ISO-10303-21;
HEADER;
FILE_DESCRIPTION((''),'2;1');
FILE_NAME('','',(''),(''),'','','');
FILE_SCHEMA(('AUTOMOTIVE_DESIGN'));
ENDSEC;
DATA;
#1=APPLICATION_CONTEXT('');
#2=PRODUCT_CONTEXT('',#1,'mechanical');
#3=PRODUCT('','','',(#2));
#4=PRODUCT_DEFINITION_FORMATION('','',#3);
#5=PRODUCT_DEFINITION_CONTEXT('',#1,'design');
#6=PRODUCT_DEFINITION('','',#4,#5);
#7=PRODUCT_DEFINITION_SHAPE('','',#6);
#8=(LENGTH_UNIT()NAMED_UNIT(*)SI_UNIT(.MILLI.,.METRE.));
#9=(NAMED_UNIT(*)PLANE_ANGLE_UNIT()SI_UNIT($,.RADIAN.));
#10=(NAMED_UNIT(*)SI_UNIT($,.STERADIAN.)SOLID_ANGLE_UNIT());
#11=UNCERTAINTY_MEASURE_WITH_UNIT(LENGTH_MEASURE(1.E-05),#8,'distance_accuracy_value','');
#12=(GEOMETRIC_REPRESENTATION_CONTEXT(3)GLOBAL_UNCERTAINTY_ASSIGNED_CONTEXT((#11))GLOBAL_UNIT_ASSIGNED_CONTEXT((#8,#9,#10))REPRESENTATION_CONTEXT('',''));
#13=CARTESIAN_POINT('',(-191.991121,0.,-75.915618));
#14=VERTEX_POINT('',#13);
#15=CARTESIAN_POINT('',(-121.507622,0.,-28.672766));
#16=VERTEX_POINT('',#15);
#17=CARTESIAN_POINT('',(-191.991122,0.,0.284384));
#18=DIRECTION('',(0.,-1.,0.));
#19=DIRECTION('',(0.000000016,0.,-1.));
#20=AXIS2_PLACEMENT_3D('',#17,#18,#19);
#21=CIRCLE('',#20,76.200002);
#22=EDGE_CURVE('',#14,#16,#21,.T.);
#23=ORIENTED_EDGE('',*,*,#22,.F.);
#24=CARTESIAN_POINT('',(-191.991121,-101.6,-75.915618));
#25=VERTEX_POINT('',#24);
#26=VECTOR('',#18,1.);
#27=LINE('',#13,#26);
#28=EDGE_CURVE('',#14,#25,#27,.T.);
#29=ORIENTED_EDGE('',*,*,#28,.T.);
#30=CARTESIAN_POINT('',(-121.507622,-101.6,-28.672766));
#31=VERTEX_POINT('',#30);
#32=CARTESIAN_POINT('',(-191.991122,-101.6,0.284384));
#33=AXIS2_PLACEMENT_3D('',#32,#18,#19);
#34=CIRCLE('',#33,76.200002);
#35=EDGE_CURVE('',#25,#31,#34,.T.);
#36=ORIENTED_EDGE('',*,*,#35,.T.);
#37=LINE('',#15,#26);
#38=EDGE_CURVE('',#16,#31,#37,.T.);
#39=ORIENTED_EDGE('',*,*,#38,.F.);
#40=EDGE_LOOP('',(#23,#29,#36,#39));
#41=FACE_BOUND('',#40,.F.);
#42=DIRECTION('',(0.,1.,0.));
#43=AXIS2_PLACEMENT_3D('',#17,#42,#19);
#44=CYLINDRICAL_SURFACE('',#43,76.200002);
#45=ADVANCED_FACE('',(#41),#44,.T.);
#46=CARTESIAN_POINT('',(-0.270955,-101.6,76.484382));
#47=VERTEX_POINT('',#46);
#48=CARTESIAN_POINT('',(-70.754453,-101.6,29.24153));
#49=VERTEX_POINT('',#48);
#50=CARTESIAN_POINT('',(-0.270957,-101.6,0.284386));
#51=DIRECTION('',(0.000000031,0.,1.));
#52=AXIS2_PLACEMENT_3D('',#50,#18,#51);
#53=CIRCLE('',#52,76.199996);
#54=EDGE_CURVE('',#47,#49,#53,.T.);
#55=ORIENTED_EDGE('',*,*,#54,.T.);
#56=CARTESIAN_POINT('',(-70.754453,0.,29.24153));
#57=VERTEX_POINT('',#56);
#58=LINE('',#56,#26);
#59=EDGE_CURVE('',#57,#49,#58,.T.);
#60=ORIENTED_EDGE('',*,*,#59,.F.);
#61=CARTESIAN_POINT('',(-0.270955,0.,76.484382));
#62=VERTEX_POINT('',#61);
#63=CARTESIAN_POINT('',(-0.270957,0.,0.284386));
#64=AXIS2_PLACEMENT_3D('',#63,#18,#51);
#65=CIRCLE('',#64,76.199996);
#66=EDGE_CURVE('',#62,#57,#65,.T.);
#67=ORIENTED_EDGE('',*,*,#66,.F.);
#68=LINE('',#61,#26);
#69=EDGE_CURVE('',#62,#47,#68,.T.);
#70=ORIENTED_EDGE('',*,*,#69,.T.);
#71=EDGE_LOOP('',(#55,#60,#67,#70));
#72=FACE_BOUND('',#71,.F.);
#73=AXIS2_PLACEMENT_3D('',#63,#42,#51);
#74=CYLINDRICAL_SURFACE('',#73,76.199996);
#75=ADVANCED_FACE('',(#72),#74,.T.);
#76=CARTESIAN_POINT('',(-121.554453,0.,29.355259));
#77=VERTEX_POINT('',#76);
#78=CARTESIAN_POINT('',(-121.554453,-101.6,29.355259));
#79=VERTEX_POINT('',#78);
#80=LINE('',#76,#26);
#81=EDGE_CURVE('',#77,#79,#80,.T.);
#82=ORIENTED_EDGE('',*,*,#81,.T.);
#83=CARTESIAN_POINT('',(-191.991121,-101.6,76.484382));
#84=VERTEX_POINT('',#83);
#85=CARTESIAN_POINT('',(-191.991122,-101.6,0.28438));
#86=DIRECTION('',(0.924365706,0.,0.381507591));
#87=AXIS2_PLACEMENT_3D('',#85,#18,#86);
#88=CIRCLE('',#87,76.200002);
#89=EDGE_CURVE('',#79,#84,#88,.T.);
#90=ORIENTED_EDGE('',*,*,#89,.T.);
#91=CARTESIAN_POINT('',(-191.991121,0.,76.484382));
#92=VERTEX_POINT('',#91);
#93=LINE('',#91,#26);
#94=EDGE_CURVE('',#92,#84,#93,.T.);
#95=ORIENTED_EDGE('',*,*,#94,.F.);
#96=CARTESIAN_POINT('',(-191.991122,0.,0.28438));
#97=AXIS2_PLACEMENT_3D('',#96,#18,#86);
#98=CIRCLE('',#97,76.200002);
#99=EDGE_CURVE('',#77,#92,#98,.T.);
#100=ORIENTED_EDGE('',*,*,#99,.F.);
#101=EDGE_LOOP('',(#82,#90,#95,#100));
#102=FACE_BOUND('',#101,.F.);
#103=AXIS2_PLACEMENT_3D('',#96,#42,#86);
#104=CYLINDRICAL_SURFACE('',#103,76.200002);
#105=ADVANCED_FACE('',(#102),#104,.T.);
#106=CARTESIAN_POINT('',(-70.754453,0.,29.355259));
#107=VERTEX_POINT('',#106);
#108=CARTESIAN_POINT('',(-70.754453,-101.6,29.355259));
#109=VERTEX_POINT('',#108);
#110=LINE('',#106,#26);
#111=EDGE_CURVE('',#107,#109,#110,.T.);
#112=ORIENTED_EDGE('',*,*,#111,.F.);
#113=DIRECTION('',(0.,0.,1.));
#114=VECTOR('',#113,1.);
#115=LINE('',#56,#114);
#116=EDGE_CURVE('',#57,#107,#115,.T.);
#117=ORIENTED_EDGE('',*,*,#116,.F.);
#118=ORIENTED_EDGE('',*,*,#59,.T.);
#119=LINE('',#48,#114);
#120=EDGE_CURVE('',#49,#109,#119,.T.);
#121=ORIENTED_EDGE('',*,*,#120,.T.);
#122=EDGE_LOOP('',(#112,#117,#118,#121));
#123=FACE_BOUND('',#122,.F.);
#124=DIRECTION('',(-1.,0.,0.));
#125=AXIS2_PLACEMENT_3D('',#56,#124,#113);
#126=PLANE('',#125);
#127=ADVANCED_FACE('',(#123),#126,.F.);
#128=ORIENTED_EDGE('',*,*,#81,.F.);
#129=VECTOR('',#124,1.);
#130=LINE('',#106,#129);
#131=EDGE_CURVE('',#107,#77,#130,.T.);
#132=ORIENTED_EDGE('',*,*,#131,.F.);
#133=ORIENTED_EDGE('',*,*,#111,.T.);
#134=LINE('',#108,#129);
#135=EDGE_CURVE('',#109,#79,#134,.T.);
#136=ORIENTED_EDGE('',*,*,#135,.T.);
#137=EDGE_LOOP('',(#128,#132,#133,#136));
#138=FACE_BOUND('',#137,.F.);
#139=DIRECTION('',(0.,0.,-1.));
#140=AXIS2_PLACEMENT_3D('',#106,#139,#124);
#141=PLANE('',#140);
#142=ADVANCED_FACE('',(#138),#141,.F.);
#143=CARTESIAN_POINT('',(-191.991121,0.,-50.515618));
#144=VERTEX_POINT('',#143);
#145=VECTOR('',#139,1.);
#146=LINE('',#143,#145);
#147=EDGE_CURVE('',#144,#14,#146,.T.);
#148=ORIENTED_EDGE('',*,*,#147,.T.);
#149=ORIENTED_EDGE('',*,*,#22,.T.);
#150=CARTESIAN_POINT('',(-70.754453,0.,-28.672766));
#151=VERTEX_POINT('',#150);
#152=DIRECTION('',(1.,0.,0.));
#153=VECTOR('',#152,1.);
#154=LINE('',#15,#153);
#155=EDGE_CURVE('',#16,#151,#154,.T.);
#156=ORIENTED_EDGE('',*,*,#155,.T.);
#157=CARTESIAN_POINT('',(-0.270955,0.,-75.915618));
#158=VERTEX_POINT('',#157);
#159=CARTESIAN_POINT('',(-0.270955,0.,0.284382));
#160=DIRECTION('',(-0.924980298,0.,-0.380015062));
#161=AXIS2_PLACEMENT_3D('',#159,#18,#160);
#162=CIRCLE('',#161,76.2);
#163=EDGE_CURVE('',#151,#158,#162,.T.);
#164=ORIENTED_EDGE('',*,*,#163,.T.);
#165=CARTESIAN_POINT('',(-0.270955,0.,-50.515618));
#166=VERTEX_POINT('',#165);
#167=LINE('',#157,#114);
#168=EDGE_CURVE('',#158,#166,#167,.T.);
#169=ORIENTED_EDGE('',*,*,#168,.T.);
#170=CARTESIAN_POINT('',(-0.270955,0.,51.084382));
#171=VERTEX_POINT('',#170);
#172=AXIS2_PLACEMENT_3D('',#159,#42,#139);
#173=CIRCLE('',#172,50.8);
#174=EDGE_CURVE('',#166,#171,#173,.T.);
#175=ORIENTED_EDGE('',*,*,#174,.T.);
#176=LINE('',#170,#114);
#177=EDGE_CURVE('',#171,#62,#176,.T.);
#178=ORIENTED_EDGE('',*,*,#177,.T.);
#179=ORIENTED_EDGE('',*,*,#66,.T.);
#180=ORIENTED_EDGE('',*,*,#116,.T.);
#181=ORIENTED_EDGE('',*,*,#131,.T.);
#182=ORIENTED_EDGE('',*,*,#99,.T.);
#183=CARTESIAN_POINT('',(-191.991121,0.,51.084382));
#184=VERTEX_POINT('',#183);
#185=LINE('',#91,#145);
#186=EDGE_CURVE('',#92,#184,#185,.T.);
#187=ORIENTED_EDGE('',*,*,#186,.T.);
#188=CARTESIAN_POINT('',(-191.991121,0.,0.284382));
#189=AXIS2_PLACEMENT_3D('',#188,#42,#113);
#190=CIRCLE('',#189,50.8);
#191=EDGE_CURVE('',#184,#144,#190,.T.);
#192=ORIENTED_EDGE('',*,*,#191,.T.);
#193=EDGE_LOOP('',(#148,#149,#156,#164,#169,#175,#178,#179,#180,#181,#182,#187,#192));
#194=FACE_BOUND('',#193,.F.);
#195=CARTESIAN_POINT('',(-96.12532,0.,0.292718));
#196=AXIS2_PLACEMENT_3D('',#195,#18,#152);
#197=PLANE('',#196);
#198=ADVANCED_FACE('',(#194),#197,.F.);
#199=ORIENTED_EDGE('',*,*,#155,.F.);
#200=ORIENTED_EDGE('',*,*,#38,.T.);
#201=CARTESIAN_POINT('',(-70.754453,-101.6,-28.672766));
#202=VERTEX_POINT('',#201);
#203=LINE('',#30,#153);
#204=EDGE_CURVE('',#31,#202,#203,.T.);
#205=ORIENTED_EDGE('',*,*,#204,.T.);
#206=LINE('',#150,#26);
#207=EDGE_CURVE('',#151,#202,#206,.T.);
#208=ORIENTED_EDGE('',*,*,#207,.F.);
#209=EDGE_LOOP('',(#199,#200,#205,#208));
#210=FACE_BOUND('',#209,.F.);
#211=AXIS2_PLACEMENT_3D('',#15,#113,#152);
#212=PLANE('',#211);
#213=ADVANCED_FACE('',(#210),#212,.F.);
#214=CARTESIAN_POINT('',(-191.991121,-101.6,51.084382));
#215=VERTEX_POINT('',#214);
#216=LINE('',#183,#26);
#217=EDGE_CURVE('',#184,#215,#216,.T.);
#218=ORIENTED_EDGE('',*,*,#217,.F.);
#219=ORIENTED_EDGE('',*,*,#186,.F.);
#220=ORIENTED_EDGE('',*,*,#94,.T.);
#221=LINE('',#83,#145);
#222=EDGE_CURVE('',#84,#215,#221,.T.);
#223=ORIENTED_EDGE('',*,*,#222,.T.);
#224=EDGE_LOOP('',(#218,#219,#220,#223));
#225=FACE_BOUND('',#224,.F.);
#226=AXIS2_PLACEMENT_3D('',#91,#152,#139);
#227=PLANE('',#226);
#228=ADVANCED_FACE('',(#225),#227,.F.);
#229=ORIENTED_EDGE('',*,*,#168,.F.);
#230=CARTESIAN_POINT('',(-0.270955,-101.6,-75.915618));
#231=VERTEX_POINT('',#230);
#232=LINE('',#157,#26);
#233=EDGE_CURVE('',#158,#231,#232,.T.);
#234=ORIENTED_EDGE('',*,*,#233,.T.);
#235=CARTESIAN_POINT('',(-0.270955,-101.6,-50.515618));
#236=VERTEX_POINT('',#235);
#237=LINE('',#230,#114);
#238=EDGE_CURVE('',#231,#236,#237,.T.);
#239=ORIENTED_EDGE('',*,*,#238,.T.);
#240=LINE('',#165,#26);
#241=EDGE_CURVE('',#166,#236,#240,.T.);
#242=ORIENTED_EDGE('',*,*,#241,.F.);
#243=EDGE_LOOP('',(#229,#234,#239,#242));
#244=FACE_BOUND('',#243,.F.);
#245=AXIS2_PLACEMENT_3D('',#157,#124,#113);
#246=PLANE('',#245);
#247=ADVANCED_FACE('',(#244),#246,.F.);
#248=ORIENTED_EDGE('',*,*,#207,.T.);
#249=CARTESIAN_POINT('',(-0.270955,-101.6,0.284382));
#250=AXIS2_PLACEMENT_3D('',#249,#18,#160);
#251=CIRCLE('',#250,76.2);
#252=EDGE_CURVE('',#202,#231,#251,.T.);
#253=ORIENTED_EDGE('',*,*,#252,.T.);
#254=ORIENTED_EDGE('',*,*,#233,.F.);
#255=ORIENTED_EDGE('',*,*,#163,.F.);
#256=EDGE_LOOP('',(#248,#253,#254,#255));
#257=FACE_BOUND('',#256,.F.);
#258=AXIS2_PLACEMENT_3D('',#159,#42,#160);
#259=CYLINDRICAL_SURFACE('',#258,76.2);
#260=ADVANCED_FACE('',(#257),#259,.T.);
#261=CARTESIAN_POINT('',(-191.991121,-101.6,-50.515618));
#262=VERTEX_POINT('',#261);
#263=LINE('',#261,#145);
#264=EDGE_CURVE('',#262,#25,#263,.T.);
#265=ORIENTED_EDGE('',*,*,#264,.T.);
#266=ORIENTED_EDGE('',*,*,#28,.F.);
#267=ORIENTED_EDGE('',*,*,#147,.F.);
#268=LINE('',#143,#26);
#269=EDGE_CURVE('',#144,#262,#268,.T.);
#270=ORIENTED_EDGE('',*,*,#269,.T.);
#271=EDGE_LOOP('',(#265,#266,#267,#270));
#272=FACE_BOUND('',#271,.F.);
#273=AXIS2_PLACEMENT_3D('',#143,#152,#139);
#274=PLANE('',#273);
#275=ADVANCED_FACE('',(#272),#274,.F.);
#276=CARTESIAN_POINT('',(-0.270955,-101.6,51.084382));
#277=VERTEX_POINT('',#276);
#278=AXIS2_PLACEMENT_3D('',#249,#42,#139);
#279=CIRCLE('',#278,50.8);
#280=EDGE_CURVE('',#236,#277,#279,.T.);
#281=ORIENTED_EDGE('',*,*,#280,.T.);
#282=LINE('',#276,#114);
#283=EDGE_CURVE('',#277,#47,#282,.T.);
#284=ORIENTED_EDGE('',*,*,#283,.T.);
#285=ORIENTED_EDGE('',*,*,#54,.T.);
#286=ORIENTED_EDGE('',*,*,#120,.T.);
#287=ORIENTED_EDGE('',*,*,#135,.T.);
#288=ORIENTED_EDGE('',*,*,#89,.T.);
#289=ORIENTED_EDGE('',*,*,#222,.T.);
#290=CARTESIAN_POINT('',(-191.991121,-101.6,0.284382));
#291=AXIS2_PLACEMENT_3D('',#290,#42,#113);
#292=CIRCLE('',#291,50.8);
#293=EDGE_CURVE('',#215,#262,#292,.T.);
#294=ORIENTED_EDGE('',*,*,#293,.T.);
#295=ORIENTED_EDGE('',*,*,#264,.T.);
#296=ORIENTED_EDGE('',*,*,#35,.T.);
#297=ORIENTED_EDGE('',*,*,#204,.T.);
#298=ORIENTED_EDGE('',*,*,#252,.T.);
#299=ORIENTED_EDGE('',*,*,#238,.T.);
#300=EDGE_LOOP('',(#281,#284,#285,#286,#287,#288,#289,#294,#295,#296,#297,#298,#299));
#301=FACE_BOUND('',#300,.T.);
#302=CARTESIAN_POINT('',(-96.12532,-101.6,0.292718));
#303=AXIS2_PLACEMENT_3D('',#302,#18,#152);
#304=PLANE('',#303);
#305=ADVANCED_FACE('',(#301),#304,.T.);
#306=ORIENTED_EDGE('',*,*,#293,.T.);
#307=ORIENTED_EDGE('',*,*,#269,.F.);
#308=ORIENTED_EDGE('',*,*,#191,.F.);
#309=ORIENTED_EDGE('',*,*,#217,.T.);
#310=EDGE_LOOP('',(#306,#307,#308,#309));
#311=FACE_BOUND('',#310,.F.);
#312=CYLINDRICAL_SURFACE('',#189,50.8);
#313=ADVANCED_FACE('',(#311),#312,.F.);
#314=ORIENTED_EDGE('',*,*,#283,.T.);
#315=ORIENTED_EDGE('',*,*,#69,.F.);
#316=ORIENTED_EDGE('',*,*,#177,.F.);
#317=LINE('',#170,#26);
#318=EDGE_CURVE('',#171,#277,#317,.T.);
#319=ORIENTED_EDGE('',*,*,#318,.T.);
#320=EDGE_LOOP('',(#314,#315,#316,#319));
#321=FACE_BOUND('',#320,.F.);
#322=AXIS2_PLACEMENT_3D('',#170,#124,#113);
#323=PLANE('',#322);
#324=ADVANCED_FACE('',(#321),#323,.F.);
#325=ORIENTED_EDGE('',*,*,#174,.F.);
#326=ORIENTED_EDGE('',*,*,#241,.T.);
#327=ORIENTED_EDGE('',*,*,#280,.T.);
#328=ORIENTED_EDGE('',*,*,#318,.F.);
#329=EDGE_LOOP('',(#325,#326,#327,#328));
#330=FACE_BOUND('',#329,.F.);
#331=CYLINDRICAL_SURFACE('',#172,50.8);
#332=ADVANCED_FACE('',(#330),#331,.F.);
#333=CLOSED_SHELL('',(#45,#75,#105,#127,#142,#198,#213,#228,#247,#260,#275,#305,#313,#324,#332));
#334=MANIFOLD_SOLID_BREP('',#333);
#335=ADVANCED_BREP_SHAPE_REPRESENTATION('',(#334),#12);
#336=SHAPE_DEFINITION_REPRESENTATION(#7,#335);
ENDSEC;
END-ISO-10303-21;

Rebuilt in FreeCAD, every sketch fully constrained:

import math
import FreeCAD as App
import Part
import Sketcher
from FreeCAD import Vector
Q = App.Units.Quantity

doc = App.newDocument("Part")
body = doc.addObject("PartDesign::Body", "Body")

# Sketch on XZ plane
sketch1 = body.newObject("Sketcher::SketchObject", "Sketch")
sketch1.AttachmentSupport = (doc.getObject("XZ_Plane"), [""])
sketch1.MapMode = "FlatFace"
sketch1.addGeometry([
    Part.ArcOfCircle(Part.Circle(Vector(-191.99, 0.28, 0), Vector(0, 0, 1), 76.2), math.radians(22), math.radians(90)),  # 0
    Part.LineSegment(Vector(-191.99, 76.48, 0), Vector(-191.99, 51.08, 0)),  # 1
    Part.ArcOfCircle(Part.Circle(Vector(-191.99, 0.28, 0), Vector(0, 0, 1), 50.8), math.radians(-90), math.radians(90)),  # 2
    Part.LineSegment(Vector(-191.99, -50.52, 0), Vector(-191.99, -75.92, 0)),  # 3
    Part.ArcOfCircle(Part.Circle(Vector(-191.99, 0.28, 0), Vector(0, 0, 1), 76.2), math.radians(-90), math.radians(-22)),  # 4
    Part.LineSegment(Vector(-121.51, -28.67, 0), Vector(-70.75, -28.67, 0)),  # 5
    Part.ArcOfCircle(Part.Circle(Vector(-0.27, 0.28, 0), Vector(0, 0, 1), 76.2), math.radians(-158), math.radians(-90)),  # 6
    Part.LineSegment(Vector(-0.27, -75.92, 0), Vector(-0.27, -50.52, 0)),  # 7
    Part.ArcOfCircle(Part.Circle(Vector(-0.27, 0.28, 0), Vector(0, 0, 1), 50.8), math.radians(90), math.radians(270)),  # 8
    Part.LineSegment(Vector(-0.27, 51.08, 0), Vector(-0.27, 76.48, 0)),  # 9
    Part.ArcOfCircle(Part.Circle(Vector(-0.27, 0.28, 0), Vector(0, 0, 1), 76.2), math.radians(90), math.radians(158)),  # 10
    Part.LineSegment(Vector(-70.75, 29.24, 0), Vector(-70.75, 29.36, 0)),  # 11
    Part.LineSegment(Vector(-70.75, 29.36, 0), Vector(-121.55, 29.36, 0)),  # 12
], False)
sketch1.addConstraint([
    Sketcher.Constraint("Coincident", 0, 2, 1, 1),
    Sketcher.Constraint("Coincident", 1, 2, 2, 2),
    Sketcher.Constraint("Coincident", 2, 1, 3, 1),
    Sketcher.Constraint("Coincident", 3, 2, 4, 1),
    Sketcher.Constraint("Coincident", 4, 2, 5, 1),
    Sketcher.Constraint("Coincident", 5, 2, 6, 1),
    Sketcher.Constraint("Coincident", 6, 2, 7, 1),
    Sketcher.Constraint("Coincident", 7, 2, 8, 2),
    Sketcher.Constraint("Coincident", 8, 1, 9, 1),
    Sketcher.Constraint("Coincident", 9, 2, 10, 1),
    Sketcher.Constraint("Coincident", 10, 2, 11, 1),
    Sketcher.Constraint("Coincident", 11, 2, 12, 1),
    Sketcher.Constraint("Coincident", 12, 2, 0, 1),
    Sketcher.Constraint("Vertical", 1),
    Sketcher.Constraint("Vertical", 3),
    Sketcher.Constraint("Horizontal", 5),
    Sketcher.Constraint("Vertical", 7),
    Sketcher.Constraint("Vertical", 9),
    Sketcher.Constraint("Vertical", 11),
    Sketcher.Constraint("Horizontal", 12),
    Sketcher.Constraint("Coincident", 2, 3, 0, 3),
    Sketcher.Constraint("Coincident", 4, 3, 0, 3),
    Sketcher.Constraint("Coincident", 8, 3, 6, 3),
    Sketcher.Constraint("Coincident", 10, 3, 6, 3),
    Sketcher.Constraint("Equal", 0, 4),
    Sketcher.Constraint("Equal", 2, 8),
    Sketcher.Constraint("Horizontal", 2, 3, 6, 3),
    Sketcher.Constraint("Horizontal", 3, 2, 6, 2),
    Sketcher.Constraint("Horizontal", 0, 2, 9, 2),
    Sketcher.Constraint("Vertical", 4, 3, 0, 2),
    Sketcher.Constraint("Vertical", 1, 2, 2, 1),
    Sketcher.Constraint("Vertical", 8, 3, 6, 2),
    Sketcher.Constraint("Vertical", 7, 2, 8, 1),
    Sketcher.Constraint("Vertical", 5, 2, 10, 2),
    Sketcher.Constraint("Radius", 0, Q("3.0000001 in")),
    Sketcher.Constraint("Radius", 2, Q("2 in")),
    Sketcher.Constraint("DistanceX", 12, 2, 12, 1, Q("2 in")),
    Sketcher.Constraint("DistanceX", 5, 1, 5, 2, Q("50.753169 mm")),
    Sketcher.Constraint("DistanceX", 2, 1, 4, 2, Q("70.483499 mm")),
    Sketcher.Constraint("DistanceX", 0, 3, -1, 1, Q("191.991122 mm")),
    Sketcher.Constraint("DistanceY", -1, 1, 0, 3, Q("0.28438 mm")),
])
pad1 = body.newObject("PartDesign::Pad", "Pad")
pad1.Profile = sketch1
pad1.Length = Q("4 in")

doc.recompute()
